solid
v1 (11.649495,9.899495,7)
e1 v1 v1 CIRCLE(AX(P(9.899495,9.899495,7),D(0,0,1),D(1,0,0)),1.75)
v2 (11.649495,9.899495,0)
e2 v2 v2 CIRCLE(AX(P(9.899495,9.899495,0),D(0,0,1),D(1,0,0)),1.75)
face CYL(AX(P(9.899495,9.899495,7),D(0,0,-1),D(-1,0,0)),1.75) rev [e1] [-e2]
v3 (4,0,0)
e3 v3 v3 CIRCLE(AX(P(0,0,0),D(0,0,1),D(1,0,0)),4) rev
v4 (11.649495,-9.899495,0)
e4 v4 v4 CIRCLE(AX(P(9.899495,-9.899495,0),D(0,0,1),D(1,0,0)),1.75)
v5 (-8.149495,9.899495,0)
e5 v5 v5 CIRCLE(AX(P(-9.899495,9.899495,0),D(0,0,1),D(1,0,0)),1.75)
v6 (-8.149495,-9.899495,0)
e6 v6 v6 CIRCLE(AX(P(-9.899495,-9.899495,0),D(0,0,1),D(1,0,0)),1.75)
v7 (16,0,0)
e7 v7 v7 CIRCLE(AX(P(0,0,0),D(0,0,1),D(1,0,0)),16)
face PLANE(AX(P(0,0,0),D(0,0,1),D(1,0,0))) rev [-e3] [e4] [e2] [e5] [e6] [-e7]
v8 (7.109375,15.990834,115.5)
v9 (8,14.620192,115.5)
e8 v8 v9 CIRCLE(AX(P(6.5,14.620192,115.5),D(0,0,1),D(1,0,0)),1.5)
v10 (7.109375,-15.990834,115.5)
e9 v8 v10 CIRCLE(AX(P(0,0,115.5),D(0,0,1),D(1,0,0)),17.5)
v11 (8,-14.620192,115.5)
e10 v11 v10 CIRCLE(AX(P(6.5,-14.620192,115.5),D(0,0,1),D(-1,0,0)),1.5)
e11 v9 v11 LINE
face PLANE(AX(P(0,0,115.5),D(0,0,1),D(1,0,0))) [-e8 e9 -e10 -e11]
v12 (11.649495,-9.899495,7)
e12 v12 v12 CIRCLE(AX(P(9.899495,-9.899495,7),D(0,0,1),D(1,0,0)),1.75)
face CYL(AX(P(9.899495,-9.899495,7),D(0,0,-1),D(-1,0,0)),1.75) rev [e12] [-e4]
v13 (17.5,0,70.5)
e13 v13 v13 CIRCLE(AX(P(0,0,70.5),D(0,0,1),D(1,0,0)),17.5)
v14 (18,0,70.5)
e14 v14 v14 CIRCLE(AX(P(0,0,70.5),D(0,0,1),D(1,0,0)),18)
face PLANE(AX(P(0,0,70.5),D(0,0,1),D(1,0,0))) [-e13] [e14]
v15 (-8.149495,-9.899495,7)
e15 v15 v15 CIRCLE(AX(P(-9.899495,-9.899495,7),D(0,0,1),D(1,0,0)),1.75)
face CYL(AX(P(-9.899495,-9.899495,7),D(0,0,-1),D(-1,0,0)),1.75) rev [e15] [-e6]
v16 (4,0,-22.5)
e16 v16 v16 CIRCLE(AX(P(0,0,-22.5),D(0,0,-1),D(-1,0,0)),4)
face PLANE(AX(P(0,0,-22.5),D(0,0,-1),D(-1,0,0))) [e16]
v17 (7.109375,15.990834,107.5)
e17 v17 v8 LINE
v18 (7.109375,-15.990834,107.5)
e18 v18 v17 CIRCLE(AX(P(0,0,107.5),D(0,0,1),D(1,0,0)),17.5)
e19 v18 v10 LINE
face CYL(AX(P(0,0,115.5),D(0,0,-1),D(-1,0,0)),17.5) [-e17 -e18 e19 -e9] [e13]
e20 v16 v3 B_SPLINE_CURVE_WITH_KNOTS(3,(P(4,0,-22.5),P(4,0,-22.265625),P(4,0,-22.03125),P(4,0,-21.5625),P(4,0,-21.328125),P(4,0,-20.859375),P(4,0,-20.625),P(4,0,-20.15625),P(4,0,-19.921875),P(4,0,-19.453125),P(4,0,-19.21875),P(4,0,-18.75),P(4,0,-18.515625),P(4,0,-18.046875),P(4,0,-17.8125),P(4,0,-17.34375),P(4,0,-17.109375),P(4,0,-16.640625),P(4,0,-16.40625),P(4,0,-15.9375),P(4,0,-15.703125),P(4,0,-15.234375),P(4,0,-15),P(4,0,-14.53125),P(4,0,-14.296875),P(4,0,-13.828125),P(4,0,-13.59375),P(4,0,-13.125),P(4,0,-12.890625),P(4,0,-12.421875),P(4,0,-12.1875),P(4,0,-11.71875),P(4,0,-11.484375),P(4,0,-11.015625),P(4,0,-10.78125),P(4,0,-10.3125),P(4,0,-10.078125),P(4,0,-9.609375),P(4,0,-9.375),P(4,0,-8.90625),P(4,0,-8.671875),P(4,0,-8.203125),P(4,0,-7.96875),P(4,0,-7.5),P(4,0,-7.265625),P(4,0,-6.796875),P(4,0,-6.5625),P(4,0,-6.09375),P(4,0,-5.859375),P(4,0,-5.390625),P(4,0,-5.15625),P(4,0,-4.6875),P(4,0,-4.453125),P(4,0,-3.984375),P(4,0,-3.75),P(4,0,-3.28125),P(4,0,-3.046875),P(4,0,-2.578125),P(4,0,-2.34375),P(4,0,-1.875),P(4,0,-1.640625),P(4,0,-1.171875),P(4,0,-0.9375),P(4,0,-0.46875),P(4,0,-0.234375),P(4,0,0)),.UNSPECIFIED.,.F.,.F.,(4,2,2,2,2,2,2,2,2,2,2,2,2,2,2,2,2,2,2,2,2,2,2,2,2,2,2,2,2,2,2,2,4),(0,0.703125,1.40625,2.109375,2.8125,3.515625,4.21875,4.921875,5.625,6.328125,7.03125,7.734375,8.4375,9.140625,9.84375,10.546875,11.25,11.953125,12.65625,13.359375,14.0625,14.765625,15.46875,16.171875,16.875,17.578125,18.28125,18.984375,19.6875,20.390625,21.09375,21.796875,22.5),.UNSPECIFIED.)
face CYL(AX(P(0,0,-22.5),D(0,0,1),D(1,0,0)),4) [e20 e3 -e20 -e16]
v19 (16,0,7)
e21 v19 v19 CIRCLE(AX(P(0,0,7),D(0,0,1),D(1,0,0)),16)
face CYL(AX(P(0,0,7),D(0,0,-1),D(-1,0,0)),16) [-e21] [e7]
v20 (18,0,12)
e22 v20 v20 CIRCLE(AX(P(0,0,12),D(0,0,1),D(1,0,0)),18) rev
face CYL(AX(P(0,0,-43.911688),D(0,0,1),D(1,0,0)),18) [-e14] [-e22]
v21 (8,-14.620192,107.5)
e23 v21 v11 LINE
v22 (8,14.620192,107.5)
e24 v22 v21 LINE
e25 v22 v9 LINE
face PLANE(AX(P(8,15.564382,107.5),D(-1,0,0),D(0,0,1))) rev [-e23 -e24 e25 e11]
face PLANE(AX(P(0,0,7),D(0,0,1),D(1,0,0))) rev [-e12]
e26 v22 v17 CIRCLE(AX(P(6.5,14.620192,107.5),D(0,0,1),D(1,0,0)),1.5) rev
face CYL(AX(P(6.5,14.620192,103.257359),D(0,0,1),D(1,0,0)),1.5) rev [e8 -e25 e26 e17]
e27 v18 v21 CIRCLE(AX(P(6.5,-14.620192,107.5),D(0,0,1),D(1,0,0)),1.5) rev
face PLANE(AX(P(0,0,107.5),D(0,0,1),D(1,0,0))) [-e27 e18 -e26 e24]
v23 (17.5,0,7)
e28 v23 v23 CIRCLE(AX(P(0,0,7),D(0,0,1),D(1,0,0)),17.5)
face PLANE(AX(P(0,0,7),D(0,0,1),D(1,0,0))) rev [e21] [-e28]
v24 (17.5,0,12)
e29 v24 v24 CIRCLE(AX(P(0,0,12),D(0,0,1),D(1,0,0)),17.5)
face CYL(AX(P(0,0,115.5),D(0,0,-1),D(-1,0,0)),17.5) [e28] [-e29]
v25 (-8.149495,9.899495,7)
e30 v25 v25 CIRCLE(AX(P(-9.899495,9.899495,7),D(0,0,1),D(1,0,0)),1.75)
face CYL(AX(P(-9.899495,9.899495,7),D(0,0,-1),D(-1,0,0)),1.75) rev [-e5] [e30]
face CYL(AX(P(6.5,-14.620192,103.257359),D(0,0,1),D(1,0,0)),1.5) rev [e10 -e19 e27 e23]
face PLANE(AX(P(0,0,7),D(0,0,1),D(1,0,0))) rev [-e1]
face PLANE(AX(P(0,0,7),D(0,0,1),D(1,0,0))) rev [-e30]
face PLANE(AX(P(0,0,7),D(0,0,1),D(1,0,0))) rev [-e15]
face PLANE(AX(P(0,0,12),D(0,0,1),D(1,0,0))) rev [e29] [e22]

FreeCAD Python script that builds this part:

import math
import FreeCAD as App
import Part
import Sketcher
from FreeCAD import Vector
Q = App.Units.Quantity

doc = App.newDocument("Part")
params = doc.addObject("Spreadsheet::Sheet", "Params")
for row, (alias, value) in enumerate([
    ("sketch1_diameter", "32 mm"),
    ("sketch1_diameter2", "3.5 mm"),
    ("pad1_length", "7 mm"),
    ("sketch2_diameter", "35 mm"),
    ("pad2_length", "108.5 mm"),
    ("sketch3_diameter", "8 mm"),
    ("pad3_length", "22.5 mm"),
    ("sketch4_diameter", "36 mm"),
    ("sketch4_diameter2", "35 mm"),
    ("pad4_length", "58.5 mm"),
    ("sketch5_radius", "17.5 mm"),
    ("pocket1_length", "8 mm"),
    ("sketch6_radius", "17.499999 mm"),
    ("sketch6_radius2", "1.5 mm"),
    ("pocket2_length", "8 mm"),
], start=1):
    params.set(f"A{row}", alias)
    params.set(f"B{row}", "=" + value)
    params.setAlias(f"B{row}", alias)

body = doc.addObject("PartDesign::Body", "Body")

# Sketch on XY plane
sketch1 = doc.addObject("Sketcher::SketchObject", "Sketch")
body.addObject(sketch1)
sketch1.AttachmentSupport = (doc.XY_Plane, [""])
sketch1.MapMode = "FlatFace"
sketch1.addGeometry(Part.Circle(Vector(0, 0, 0), Vector(0, 0, 1), 16), False)
sketch1.addGeometry(Part.Circle(Vector(-9.899495, -9.899495, 0), Vector(0, 0, 1), 1.75), False)
sketch1.addGeometry(Part.Circle(Vector(9.899495, -9.899495, 0), Vector(0, 0, 1), 1.75), False)
sketch1.addGeometry(Part.Circle(Vector(-9.899495, 9.899495, 0), Vector(0, 0, 1), 1.75), False)
sketch1.addGeometry(Part.Circle(Vector(9.899495, 9.899495, 0), Vector(0, 0, 1), 1.75), False)
sketch1.addConstraint(Sketcher.Constraint("Coincident", 0, 3, -1, 1))
sketch1.addConstraint(Sketcher.Constraint("Equal", 1, 2))
sketch1.addConstraint(Sketcher.Constraint("Equal", 2, 3))
sketch1.addConstraint(Sketcher.Constraint("Equal", 3, 4))
sketch1.addConstraint(Sketcher.Constraint("Symmetric", 2, 3, 3, 3, -1, 1))
sketch1.addConstraint(Sketcher.Constraint("Symmetric", 1, 3, 4, 3, -1, 1))
sketch1.addConstraint(Sketcher.Constraint("Symmetric", 1, 3, 2, 3, -2))
sketch1.addConstraint(Sketcher.Constraint("Diameter", 0, Q("32 mm")))
sketch1.addConstraint(Sketcher.Constraint("Diameter", 1, Q("3.5 mm")))
sketch1.addConstraint(Sketcher.Constraint("DistanceX", 1, 3, 2, 3, Q("19.79899 mm")))
sketch1.addConstraint(Sketcher.Constraint("DistanceY", 1, 3, 3, 3, Q("19.79899 mm")))
sketch1.setExpression("Constraints[7]", "Params.sketch1_diameter")
sketch1.setExpression("Constraints[8]", "Params.sketch1_diameter2")
pad1 = doc.addObject("PartDesign::Pad", "Pad")
body.addObject(pad1)
pad1.Profile = sketch1
pad1.setExpression("Length", "Params.pad1_length")

# Sketch on XY plane
sketch2 = doc.addObject("Sketcher::SketchObject", "Sketch001")
body.addObject(sketch2)
sketch2.AttachmentSupport = (doc.XY_Plane, [""])
sketch2.MapMode = "FlatFace"
sketch2.AttachmentOffset = App.Placement(Vector(0, 0, 7), App.Rotation())
sketch2.addGeometry(Part.Circle(Vector(0, 0, 0), Vector(0, 0, 1), 17.5), False)
sketch2.addConstraint(Sketcher.Constraint("Coincident", 0, 3, -1, 1))
sketch2.addConstraint(Sketcher.Constraint("Diameter", 0, Q("35 mm")))
sketch2.setExpression("Constraints[1]", "Params.sketch2_diameter")
pad2 = doc.addObject("PartDesign::Pad", "Pad001")
body.addObject(pad2)
pad2.Profile = sketch2
pad2.setExpression("Length", "Params.pad2_length")

# Sketch on XY plane
sketch3 = doc.addObject("Sketcher::SketchObject", "Sketch002")
body.addObject(sketch3)
sketch3.AttachmentSupport = (doc.XY_Plane, [""])
sketch3.MapMode = "FlatFace"
sketch3.addGeometry(Part.Circle(Vector(0, 0, 0), Vector(0, 0, 1), 4), False)
sketch3.addConstraint(Sketcher.Constraint("Coincident", 0, 3, -1, 1))
sketch3.addConstraint(Sketcher.Constraint("Diameter", 0, Q("8 mm")))
sketch3.setExpression("Constraints[1]", "Params.sketch3_diameter")
pad3 = doc.addObject("PartDesign::Pad", "Pad002")
body.addObject(pad3)
pad3.Profile = sketch3
pad3.setExpression("Length", "Params.pad3_length")
pad3.Reversed = True

# Sketch on XY plane
sketch4 = doc.addObject("Sketcher::SketchObject", "Sketch003")
body.addObject(sketch4)
sketch4.AttachmentSupport = (doc.XY_Plane, [""])
sketch4.MapMode = "FlatFace"
sketch4.AttachmentOffset = App.Placement(Vector(0, 0, 12), App.Rotation())
sketch4.addGeometry(Part.Circle(Vector(0, 0, 0), Vector(0, 0, 1), 18), False)
sketch4.addGeometry(Part.Circle(Vector(0, 0, 0), Vector(0, 0, 1), 17.5), False)
sketch4.addConstraint(Sketcher.Constraint("Coincident", 0, 3, -1, 1))
sketch4.addConstraint(Sketcher.Constraint("Coincident", 1, 3, -1, 1))
sketch4.addConstraint(Sketcher.Constraint("Diameter", 0, Q("36 mm")))
sketch4.addConstraint(Sketcher.Constraint("Diameter", 1, Q("35 mm")))
sketch4.setExpression("Constraints[2]", "Params.sketch4_diameter")
sketch4.setExpression("Constraints[3]", "Params.sketch4_diameter2")
pad4 = doc.addObject("PartDesign::Pad", "Pad003")
body.addObject(pad4)
pad4.Profile = sketch4
pad4.setExpression("Length", "Params.pad4_length")

# Sketch on XY plane
sketch5 = doc.addObject("Sketcher::SketchObject", "Sketch004")
body.addObject(sketch5)
sketch5.AttachmentSupport = (doc.XY_Plane, [""])
sketch5.MapMode = "FlatFace"
sketch5.AttachmentOffset = App.Placement(Vector(0, 0, 107.5), App.Rotation())
sketch5.addGeometry(Part.LineSegment(Vector(8, 15.564382, 0), Vector(8, -15.564382, 0)), False)
sketch5.addGeometry(Part.ArcOfCircle(Part.Circle(Vector(0, 0, 0), Vector(0, 0, 1), 17.5), math.radians(-62.797106), math.radians(62.797106)), False)
sketch5.addConstraint(Sketcher.Constraint("Coincident", 0, 1, 1, 2))
sketch5.addConstraint(Sketcher.Constraint("Coincident", 1, 1, 0, 2))
sketch5.addConstraint(Sketcher.Constraint("Vertical", 0))
sketch5.addConstraint(Sketcher.Constraint("Coincident", 1, 3, -1, 1))
sketch5.addConstraint(Sketcher.Constraint("Radius", 1, Q("17.5 mm")))
sketch5.addConstraint(Sketcher.Constraint("DistanceX", -1, 1, 0, 1, Q("8 mm")))
sketch5.setExpression("Constraints[4]", "Params.sketch5_radius")
pocket1 = doc.addObject("PartDesign::Pocket", "Pocket")
body.addObject(pocket1)
pocket1.Profile = sketch5
pocket1.setExpression("Length", "Params.pocket1_length")
pocket1.Reversed = True

# Sketch on XY plane
sketch6 = doc.addObject("Sketcher::SketchObject", "Sketch005")
body.addObject(sketch6)
sketch6.AttachmentSupport = (doc.XY_Plane, [""])
sketch6.MapMode = "FlatFace"
sketch6.AttachmentOffset = App.Placement(Vector(0, 0, 107.5), App.Rotation())
sketch6.addGeometry(Part.LineSegment(Vector(8, 14.620192, 0), Vector(8, 15.564382, 0)), False)
sketch6.addGeometry(Part.ArcOfCircle(Part.Circle(Vector(0, 0.000001, 0), Vector(0, 0, 1), 17.499999), math.radians(62.797105), math.radians(66.030518)), False)
sketch6.addGeometry(Part.ArcOfCircle(Part.Circle(Vector(6.5, 14.620192, 0), Vector(0, 0, 1), 1.5), math.radians(66.030518), math.radians(360)), False)
sketch6.addGeometry(Part.LineSegment(Vector(8, -15.564382, 0), Vector(8, -14.620192, 0)), False)
sketch6.addGeometry(Part.ArcOfCircle(Part.Circle(Vector(6.5, -14.620192, 0), Vector(0, 0, 1), 1.5), math.radians(0), math.radians(293.969482)), False)
sketch6.addGeometry(Part.ArcOfCircle(Part.Circle(Vector(0, -0.000001, 0), Vector(0, 0, 1), 17.499999), math.radians(-66.030518), math.radians(-62.797105)), False)
sketch6.addConstraint(Sketcher.Constraint("Coincident", 0, 2, 1, 1))
sketch6.addConstraint(Sketcher.Constraint("Tangent", 1, 2, 2, 1))
sketch6.addConstraint(Sketcher.Constraint("Tangent", 2, 2, 0, 1))
sketch6.addConstraint(Sketcher.Constraint("Tangent", 3, 2, 4, 1))
sketch6.addConstraint(Sketcher.Constraint("Tangent", 4, 2, 5, 1))
sketch6.addConstraint(Sketcher.Constraint("Coincident", 5, 2, 3, 1))
sketch6.addConstraint(Sketcher.Constraint("Vertical", 0))
sketch6.addConstraint(Sketcher.Constraint("Vertical", 3))
sketch6.addConstraint(Sketcher.Constraint("Coincident", 1, 3, -1, 1))
sketch6.addConstraint(Sketcher.Constraint("Coincident", 5, 3, -1, 1))
sketch6.addConstraint(Sketcher.Constraint("Equal", 2, 4))
sketch6.addConstraint(Sketcher.Constraint("Equal", 1, 5))
sketch6.addConstraint(Sketcher.Constraint("Vertical", 2, 3, 4, 3))
sketch6.addConstraint(Sketcher.Constraint("Radius", 1, Q("17.499999 mm")))
sketch6.addConstraint(Sketcher.Constraint("Radius", 2, Q("1.5 mm")))
sketch6.addConstraint(Sketcher.Constraint("DistanceX", -1, 1, 0, 2, Q("8 mm")))
sketch6.setExpression("Constraints[13]", "Params.sketch6_radius")
sketch6.setExpression("Constraints[14]", "Params.sketch6_radius2")
pocket2 = doc.addObject("PartDesign::Pocket", "Pocket001")
body.addObject(pocket2)
pocket2.Profile = sketch6
pocket2.setExpression("Length", "Params.pocket2_length")
pocket2.Reversed = True

doc.recompute()
